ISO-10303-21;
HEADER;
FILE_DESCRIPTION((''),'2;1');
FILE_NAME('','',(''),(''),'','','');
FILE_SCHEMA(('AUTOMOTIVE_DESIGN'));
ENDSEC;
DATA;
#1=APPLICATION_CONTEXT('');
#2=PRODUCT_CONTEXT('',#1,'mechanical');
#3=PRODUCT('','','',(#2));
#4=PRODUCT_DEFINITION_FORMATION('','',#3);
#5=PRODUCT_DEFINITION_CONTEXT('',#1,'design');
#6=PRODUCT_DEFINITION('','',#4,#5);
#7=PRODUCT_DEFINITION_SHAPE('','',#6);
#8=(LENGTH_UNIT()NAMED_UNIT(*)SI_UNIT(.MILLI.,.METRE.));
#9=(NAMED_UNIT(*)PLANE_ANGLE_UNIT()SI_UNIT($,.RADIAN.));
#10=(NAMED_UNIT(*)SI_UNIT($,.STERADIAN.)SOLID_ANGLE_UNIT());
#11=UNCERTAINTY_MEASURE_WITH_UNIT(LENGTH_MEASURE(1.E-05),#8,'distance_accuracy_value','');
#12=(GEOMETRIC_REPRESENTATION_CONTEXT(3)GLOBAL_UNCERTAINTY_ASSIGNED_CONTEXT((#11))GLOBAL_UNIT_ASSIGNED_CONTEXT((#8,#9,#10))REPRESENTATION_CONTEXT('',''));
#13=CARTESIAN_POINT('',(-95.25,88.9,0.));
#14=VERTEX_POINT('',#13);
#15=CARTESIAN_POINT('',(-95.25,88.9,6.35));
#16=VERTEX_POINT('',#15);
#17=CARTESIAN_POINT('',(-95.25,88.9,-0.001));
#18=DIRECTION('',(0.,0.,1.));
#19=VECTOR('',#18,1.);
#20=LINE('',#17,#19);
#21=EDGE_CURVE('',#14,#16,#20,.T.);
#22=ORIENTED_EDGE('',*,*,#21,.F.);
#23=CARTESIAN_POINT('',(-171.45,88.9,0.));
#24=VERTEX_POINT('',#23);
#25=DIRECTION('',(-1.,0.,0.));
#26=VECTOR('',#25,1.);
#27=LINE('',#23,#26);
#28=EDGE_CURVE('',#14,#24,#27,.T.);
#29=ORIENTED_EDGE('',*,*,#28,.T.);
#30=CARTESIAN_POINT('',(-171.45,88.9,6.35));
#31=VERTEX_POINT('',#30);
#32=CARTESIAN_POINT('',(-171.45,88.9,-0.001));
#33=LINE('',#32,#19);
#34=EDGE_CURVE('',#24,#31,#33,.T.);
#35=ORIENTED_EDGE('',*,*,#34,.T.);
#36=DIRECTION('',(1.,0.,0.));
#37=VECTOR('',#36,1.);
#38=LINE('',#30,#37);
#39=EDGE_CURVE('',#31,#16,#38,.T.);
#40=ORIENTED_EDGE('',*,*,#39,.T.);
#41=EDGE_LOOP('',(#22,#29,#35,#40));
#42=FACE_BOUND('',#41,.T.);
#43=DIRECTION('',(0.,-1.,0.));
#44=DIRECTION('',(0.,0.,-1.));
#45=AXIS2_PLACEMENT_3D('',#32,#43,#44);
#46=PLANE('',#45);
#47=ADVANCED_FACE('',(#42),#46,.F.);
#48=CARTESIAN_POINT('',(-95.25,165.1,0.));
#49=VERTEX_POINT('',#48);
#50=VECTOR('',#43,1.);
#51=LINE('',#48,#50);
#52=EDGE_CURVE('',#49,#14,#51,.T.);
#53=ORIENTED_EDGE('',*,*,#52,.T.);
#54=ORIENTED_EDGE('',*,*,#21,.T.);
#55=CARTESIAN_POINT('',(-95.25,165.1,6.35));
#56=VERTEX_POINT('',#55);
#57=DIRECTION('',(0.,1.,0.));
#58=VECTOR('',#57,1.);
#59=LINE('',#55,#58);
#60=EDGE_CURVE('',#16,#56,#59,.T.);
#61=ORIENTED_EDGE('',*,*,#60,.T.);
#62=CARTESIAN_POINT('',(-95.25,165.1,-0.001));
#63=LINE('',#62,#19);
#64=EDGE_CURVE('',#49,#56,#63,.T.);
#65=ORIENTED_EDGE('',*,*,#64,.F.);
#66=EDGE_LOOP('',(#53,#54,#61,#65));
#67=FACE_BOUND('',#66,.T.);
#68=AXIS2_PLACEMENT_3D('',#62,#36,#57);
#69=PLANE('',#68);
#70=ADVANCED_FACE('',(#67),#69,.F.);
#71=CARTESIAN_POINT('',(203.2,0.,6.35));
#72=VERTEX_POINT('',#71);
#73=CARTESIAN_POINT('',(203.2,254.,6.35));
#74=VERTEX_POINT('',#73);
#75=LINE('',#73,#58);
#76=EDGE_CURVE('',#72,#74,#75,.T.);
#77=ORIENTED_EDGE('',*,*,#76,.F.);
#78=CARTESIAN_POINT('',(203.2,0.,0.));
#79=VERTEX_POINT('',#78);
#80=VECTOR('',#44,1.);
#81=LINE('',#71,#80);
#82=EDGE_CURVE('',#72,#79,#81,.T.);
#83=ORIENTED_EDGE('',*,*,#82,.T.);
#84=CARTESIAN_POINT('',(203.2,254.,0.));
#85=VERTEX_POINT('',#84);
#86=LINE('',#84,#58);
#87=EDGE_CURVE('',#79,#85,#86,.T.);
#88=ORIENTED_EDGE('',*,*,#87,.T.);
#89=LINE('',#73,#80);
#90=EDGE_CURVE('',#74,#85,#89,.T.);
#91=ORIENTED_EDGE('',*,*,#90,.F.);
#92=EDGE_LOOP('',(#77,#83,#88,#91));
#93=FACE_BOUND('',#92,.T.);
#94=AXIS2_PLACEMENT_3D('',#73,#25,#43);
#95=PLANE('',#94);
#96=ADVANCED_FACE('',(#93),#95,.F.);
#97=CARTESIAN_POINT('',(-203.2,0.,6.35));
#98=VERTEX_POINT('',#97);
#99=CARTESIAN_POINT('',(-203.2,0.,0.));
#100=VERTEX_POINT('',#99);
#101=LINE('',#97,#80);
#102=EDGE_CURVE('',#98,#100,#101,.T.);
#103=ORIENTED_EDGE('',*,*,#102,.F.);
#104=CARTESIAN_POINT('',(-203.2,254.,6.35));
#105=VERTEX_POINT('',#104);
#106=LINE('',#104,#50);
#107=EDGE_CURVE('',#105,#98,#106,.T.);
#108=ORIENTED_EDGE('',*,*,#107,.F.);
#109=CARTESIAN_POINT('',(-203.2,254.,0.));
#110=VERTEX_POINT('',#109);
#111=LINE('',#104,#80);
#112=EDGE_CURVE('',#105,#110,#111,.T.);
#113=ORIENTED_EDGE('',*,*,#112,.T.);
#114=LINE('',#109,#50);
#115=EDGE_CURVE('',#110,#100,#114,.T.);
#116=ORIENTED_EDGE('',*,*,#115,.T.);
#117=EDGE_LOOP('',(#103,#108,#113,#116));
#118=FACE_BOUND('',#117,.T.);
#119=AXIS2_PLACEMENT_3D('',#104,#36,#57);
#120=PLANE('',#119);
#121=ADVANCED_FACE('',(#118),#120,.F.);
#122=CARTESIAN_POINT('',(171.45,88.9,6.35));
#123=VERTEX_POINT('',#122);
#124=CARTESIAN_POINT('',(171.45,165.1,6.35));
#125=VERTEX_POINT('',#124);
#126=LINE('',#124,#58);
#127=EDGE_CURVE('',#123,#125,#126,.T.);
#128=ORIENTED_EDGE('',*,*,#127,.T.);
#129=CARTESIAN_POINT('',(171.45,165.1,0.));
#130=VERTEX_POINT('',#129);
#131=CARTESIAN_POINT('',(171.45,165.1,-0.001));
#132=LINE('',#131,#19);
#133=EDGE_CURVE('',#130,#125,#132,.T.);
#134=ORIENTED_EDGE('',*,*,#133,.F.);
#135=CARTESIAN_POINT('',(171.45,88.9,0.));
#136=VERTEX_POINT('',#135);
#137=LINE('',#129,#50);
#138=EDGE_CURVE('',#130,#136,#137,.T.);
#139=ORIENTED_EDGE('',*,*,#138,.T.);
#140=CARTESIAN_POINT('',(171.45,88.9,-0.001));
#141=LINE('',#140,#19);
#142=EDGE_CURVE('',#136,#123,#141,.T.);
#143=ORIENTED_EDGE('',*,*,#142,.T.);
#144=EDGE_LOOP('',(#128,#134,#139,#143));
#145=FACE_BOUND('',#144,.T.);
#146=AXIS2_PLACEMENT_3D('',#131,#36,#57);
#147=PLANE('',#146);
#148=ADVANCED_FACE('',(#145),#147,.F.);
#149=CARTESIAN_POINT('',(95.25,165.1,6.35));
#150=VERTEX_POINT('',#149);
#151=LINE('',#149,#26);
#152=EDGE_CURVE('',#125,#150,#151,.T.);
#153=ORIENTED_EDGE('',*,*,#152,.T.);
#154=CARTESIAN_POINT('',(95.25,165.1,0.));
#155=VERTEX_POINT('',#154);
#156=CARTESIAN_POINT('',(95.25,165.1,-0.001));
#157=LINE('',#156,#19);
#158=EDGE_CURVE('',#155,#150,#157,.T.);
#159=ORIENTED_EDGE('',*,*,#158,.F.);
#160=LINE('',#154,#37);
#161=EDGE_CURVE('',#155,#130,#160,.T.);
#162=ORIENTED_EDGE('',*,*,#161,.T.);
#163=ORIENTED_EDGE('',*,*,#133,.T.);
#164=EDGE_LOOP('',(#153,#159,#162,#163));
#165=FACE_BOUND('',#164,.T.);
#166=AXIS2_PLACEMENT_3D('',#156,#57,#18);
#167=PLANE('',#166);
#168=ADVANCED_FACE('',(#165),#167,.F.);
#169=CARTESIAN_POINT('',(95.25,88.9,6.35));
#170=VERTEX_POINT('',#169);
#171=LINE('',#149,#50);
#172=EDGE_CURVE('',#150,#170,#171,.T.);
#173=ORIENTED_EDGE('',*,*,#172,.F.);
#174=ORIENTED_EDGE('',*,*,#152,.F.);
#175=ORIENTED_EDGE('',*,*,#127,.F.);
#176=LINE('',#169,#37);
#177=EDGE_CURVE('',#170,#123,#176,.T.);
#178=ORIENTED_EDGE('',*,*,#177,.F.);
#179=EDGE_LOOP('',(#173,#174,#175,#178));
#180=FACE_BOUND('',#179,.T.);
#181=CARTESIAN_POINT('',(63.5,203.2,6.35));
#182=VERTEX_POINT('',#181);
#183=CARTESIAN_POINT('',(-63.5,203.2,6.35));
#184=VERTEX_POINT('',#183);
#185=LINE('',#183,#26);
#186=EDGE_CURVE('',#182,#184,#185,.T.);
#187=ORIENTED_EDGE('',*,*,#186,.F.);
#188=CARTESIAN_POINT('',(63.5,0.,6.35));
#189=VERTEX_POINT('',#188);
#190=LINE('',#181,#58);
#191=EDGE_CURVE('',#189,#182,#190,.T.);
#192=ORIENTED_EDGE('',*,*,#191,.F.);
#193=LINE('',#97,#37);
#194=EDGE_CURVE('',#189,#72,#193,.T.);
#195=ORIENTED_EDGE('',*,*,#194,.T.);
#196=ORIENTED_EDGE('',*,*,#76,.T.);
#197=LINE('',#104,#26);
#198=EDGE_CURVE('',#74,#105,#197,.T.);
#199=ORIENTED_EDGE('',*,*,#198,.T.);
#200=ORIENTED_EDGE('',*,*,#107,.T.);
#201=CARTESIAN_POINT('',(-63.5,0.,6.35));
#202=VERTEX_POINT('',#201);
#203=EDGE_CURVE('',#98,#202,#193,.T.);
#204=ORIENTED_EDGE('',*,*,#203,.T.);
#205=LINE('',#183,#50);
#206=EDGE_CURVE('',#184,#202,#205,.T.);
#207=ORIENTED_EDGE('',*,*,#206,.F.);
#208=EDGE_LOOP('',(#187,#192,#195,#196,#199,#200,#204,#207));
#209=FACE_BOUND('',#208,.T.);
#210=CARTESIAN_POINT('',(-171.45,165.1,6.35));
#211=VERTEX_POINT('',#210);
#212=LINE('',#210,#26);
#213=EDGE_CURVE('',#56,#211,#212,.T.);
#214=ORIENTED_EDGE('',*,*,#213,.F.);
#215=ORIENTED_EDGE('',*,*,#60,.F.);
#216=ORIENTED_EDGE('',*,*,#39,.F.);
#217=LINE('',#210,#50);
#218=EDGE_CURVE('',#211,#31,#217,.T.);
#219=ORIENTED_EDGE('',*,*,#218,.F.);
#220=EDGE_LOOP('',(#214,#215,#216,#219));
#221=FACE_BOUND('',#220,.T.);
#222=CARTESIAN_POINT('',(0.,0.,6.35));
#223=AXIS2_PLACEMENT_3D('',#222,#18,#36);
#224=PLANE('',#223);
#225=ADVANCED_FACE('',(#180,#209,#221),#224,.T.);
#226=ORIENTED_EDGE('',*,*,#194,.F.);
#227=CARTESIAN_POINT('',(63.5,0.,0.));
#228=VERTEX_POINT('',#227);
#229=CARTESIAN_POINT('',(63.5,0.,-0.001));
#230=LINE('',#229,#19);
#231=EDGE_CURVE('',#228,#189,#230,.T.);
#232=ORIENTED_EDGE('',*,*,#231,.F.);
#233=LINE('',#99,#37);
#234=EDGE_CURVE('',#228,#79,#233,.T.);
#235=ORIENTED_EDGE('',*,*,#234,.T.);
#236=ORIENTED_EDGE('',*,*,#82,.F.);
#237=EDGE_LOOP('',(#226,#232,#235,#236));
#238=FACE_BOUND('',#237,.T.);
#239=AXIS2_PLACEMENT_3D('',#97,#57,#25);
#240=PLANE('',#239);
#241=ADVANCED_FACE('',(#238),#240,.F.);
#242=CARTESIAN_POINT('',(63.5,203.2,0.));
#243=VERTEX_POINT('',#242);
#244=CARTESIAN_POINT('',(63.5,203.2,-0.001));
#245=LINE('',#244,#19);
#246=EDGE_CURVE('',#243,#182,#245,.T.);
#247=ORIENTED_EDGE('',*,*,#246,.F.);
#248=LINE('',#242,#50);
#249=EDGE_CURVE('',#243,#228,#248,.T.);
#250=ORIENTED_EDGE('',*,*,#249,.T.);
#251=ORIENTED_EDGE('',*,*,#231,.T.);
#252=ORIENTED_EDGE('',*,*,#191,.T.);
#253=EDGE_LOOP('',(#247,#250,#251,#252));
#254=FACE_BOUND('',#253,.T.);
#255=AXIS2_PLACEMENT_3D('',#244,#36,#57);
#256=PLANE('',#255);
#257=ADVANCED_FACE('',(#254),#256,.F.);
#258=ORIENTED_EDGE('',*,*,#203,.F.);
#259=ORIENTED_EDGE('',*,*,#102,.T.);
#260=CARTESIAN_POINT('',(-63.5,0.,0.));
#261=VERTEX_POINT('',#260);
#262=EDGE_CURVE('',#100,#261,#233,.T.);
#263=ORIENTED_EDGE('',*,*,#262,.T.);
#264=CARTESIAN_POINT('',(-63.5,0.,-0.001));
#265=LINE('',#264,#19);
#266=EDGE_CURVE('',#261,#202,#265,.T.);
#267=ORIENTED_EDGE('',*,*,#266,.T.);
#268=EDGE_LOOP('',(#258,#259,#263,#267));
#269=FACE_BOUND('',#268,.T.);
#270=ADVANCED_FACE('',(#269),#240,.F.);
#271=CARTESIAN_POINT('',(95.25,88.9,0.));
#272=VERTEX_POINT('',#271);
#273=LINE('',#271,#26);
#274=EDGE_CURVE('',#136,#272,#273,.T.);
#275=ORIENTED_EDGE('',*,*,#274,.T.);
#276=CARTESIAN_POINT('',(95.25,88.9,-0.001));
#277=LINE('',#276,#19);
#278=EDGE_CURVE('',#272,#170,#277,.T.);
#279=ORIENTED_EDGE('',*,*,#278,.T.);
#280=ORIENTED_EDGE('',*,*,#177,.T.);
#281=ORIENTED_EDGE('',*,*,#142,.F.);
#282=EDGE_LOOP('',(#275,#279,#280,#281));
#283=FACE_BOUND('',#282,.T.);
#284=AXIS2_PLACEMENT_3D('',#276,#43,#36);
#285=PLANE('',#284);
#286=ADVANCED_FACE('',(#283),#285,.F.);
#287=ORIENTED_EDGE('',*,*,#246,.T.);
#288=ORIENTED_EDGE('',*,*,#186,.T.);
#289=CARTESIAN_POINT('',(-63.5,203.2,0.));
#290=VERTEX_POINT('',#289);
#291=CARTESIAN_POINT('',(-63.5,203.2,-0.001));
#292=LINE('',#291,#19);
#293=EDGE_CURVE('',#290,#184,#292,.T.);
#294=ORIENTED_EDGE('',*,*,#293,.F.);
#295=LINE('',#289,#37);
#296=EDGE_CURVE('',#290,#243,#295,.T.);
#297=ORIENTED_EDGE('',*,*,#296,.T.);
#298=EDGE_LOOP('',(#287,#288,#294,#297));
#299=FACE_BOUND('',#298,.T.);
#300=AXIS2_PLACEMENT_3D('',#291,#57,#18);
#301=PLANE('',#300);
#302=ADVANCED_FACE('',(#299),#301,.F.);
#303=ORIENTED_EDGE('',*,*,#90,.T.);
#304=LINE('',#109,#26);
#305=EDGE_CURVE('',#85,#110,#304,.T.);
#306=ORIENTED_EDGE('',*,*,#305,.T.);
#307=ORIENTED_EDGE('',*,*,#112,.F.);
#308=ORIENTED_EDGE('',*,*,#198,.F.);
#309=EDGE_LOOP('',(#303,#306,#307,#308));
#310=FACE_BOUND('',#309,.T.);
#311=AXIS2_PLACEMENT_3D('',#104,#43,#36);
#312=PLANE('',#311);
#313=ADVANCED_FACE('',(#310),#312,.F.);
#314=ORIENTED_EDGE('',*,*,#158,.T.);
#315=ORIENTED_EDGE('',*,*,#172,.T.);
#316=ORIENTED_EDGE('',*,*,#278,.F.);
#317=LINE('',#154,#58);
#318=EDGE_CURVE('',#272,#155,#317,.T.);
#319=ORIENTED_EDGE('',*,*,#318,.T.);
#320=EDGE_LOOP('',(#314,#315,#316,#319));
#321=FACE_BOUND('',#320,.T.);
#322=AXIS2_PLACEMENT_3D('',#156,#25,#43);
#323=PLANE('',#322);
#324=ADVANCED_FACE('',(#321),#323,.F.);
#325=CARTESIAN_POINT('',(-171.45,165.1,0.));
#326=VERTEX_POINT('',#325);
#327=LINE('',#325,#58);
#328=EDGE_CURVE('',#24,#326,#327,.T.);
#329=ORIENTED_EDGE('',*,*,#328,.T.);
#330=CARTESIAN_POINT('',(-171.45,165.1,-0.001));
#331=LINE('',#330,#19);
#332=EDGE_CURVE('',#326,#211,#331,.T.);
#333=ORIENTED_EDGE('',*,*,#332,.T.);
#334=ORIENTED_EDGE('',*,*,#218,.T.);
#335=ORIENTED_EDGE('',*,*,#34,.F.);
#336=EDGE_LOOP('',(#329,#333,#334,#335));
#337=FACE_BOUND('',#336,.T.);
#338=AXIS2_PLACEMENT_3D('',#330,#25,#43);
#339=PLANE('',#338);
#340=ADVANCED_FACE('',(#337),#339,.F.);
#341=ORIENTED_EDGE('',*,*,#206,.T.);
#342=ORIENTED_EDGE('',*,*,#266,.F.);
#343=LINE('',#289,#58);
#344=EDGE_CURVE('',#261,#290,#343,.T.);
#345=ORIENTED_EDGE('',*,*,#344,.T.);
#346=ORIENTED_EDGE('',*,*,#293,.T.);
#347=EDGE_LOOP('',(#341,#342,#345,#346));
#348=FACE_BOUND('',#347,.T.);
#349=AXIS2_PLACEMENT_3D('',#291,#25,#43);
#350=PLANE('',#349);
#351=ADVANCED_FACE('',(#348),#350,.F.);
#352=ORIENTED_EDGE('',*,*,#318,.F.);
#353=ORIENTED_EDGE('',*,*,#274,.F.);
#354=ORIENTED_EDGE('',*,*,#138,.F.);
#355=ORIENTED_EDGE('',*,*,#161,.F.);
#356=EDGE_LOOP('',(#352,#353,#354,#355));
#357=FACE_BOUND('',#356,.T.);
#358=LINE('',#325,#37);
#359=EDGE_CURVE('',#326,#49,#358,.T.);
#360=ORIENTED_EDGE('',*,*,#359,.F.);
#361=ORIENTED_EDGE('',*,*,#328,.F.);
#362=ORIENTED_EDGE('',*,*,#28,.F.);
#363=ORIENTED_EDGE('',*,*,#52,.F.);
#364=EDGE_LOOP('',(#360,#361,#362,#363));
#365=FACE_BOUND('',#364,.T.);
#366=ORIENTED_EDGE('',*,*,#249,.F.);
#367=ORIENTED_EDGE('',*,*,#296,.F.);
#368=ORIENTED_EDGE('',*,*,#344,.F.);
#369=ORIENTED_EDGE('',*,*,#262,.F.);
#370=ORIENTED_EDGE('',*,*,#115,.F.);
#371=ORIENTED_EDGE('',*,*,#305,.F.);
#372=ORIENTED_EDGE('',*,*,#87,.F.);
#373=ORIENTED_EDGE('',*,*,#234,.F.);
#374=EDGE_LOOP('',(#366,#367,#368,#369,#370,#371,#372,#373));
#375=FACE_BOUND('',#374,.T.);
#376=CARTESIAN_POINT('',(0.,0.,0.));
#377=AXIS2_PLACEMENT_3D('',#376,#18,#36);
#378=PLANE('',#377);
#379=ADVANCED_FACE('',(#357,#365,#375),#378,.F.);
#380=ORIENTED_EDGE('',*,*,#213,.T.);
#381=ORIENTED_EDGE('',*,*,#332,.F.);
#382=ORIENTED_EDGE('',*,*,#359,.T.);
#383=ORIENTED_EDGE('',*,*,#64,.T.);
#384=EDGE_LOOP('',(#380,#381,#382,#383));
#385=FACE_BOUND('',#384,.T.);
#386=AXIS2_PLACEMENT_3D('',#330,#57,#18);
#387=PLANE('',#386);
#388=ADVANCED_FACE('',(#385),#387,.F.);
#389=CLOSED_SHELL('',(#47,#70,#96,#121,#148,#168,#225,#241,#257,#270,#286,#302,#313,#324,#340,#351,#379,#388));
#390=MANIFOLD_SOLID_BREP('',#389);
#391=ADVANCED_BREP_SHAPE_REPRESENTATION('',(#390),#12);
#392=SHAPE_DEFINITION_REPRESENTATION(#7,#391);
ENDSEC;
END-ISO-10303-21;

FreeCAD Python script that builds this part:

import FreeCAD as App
import Part
import Sketcher
Q = App.Units.Quantity

doc = App.newDocument("Part")
body = doc.addObject("PartDesign::Body", "Body")

# Sketch on XY plane
sketch1 = body.newObject("Sketcher::SketchObject", "Sketch")
sketch1.AttachmentSupport = (doc.getObject("XY_Plane"), [""])
sketch1.MapMode = "FlatFace"
sketch1.addGeometry(Part.LineSegment(App.Vector(-203, 254, 0), App.Vector(-203, 0, 0)), False)
sketch1.addGeometry(Part.LineSegment(App.Vector(-203, 0, 0), App.Vector(203, 0, 0)), False)
sketch1.addGeometry(Part.LineSegment(App.Vector(203, 0, 0), App.Vector(203, 254, 0)), False)
sketch1.addGeometry(Part.LineSegment(App.Vector(203, 254, 0), App.Vector(-203, 254, 0)), False)
sketch1.addConstraint(Sketcher.Constraint("Coincident", 0, 2, 1, 1))
sketch1.addConstraint(Sketcher.Constraint("Coincident", 1, 2, 2, 1))
sketch1.addConstraint(Sketcher.Constraint("Coincident", 2, 2, 3, 1))
sketch1.addConstraint(Sketcher.Constraint("Coincident", 3, 2, 0, 1))
sketch1.addConstraint(Sketcher.Constraint("Vertical", 0))
sketch1.addConstraint(Sketcher.Constraint("Horizontal", 1))
sketch1.addConstraint(Sketcher.Constraint("Vertical", 2))
sketch1.addConstraint(Sketcher.Constraint("Horizontal", 3))
sketch1.addConstraint(Sketcher.Constraint("Symmetric", 0, 2, 1, 2, -1, 1))
sketch1.addConstraint(Sketcher.Constraint("DistanceX", 1, 1, 1, 2, Q("16 in")))
sketch1.addConstraint(Sketcher.Constraint("DistanceY", 0, 2, 0, 1, Q("10 in")))
pad1 = body.newObject("PartDesign::Pad", "Pad")
pad1.Profile = sketch1
pad1.Length = Q("0.25 in")

# Sketch on XY plane
sketch2 = body.newObject("Sketcher::SketchObject", "Sketch001")
sketch2.AttachmentSupport = (doc.getObject("XY_Plane"), [""])
sketch2.MapMode = "FlatFace"
sketch2.AttachmentOffset = App.Placement(App.Vector(0, 0, 0.25 * 25.4), App.Rotation())
sketch2.addGeometry(Part.LineSegment(App.Vector(-64, 203, 0), App.Vector(-64, 0, 0)), False)
sketch2.addGeometry(Part.LineSegment(App.Vector(-64, 0, 0), App.Vector(64, 0, 0)), False)
sketch2.addGeometry(Part.LineSegment(App.Vector(64, 0, 0), App.Vector(64, 203, 0)), False)
sketch2.addGeometry(Part.LineSegment(App.Vector(64, 203, 0), App.Vector(-64, 203, 0)), False)
sketch2.addConstraint(Sketcher.Constraint("Coincident", 0, 2, 1, 1))
sketch2.addConstraint(Sketcher.Constraint("Coincident", 1, 2, 2, 1))
sketch2.addConstraint(Sketcher.Constraint("Coincident", 2, 2, 3, 1))
sketch2.addConstraint(Sketcher.Constraint("Coincident", 3, 2, 0, 1))
sketch2.addConstraint(Sketcher.Constraint("Vertical", 0))
sketch2.addConstraint(Sketcher.Constraint("Horizontal", 1))
sketch2.addConstraint(Sketcher.Constraint("Vertical", 2))
sketch2.addConstraint(Sketcher.Constraint("Horizontal", 3))
sketch2.addConstraint(Sketcher.Constraint("Symmetric", 0, 2, 1, 2, -1, 1))
sketch2.addConstraint(Sketcher.Constraint("DistanceX", 1, 1, 1, 2, Q("5 in")))
sketch2.addConstraint(Sketcher.Constraint("DistanceY", 0, 2, 0, 1, Q("8 in")))
pocket1 = body.newObject("PartDesign::Pocket", "Pocket")
pocket1.Profile = sketch2
pocket1.Type = "UpToFirst"

# Sketch on XY plane
sketch3 = body.newObject("Sketcher::SketchObject", "Sketch002")
sketch3.AttachmentSupport = (doc.getObject("XY_Plane"), [""])
sketch3.MapMode = "FlatFace"
sketch3.AttachmentOffset = App.Placement(App.Vector(0, 0, 0.25 * 25.4), App.Rotation())
sketch3.addGeometry(Part.LineSegment(App.Vector(-171, 165, 0), App.Vector(-171, 89, 0)), False)
sketch3.addGeometry(Part.LineSegment(App.Vector(-171, 89, 0), App.Vector(-95, 89, 0)), False)
sketch3.addGeometry(Part.LineSegment(App.Vector(-95, 89, 0), App.Vector(-95, 165, 0)), False)
sketch3.addGeometry(Part.LineSegment(App.Vector(-95, 165, 0), App.Vector(-171, 165, 0)), False)
sketch3.addConstraint(Sketcher.Constraint("Coincident", 0, 2, 1, 1))
sketch3.addConstraint(Sketcher.Constraint("Coincident", 1, 2, 2, 1))
sketch3.addConstraint(Sketcher.Constraint("Coincident", 2, 2, 3, 1))
sketch3.addConstraint(Sketcher.Constraint("Coincident", 3, 2, 0, 1))
sketch3.addConstraint(Sketcher.Constraint("Vertical", 0))
sketch3.addConstraint(Sketcher.Constraint("Horizontal", 1))
sketch3.addConstraint(Sketcher.Constraint("Vertical", 2))
sketch3.addConstraint(Sketcher.Constraint("Horizontal", 3))
sketch3.addConstraint(Sketcher.Constraint("Equal", 3, 0))
sketch3.addConstraint(Sketcher.Constraint("DistanceX", 1, 1, 1, 2, Q("3 in")))
sketch3.addConstraint(Sketcher.Constraint("DistanceY", -1, 1, 0, 2, Q("3.5 in")))
sketch3.addConstraint(Sketcher.Constraint("DistanceX", 0, 2, -1, 1, Q("6.75 in")))
pocket2 = body.newObject("PartDesign::Pocket", "Pocket001")
pocket2.Profile = sketch3
pocket2.Type = "UpToFirst"

# Sketch on XY plane
sketch4 = body.newObject("Sketcher::SketchObject", "Sketch003")
sketch4.AttachmentSupport = (doc.getObject("XY_Plane"), [""])
sketch4.MapMode = "FlatFace"
sketch4.AttachmentOffset = App.Placement(App.Vector(0, 0, 0.25 * 25.4), App.Rotation())
sketch4.addGeometry(Part.LineSegment(App.Vector(95, 165, 0), App.Vector(95, 89, 0)), False)
sketch4.addGeometry(Part.LineSegment(App.Vector(95, 89, 0), App.Vector(171, 89, 0)), False)
sketch4.addGeometry(Part.LineSegment(App.Vector(171, 89, 0), App.Vector(171, 165, 0)), False)
sketch4.addGeometry(Part.LineSegment(App.Vector(171, 165, 0), App.Vector(95, 165, 0)), False)
sketch4.addConstraint(Sketcher.Constraint("Coincident", 0, 2, 1, 1))
sketch4.addConstraint(Sketcher.Constraint("Coincident", 1, 2, 2, 1))
sketch4.addConstraint(Sketcher.Constraint("Coincident", 2, 2, 3, 1))
sketch4.addConstraint(Sketcher.Constraint("Coincident", 3, 2, 0, 1))
sketch4.addConstraint(Sketcher.Constraint("Vertical", 0))
sketch4.addConstraint(Sketcher.Constraint("Horizontal", 1))
sketch4.addConstraint(Sketcher.Constraint("Vertical", 2))
sketch4.addConstraint(Sketcher.Constraint("Horizontal", 3))
sketch4.addConstraint(Sketcher.Constraint("Equal", 3, 0))
sketch4.addConstraint(Sketcher.Constraint("DistanceX", 1, 1, 1, 2, Q("3 in")))
sketch4.addConstraint(Sketcher.Constraint("DistanceY", -1, 1, 0, 2, Q("3.5 in")))
sketch4.addConstraint(Sketcher.Constraint("DistanceX", -1, 1, 0, 2, Q("3.75 in")))
pocket3 = body.newObject("PartDesign::Pocket", "Pocket002")
pocket3.Profile = sketch4
pocket3.Type = "UpToFirst"

doc.recompute()
